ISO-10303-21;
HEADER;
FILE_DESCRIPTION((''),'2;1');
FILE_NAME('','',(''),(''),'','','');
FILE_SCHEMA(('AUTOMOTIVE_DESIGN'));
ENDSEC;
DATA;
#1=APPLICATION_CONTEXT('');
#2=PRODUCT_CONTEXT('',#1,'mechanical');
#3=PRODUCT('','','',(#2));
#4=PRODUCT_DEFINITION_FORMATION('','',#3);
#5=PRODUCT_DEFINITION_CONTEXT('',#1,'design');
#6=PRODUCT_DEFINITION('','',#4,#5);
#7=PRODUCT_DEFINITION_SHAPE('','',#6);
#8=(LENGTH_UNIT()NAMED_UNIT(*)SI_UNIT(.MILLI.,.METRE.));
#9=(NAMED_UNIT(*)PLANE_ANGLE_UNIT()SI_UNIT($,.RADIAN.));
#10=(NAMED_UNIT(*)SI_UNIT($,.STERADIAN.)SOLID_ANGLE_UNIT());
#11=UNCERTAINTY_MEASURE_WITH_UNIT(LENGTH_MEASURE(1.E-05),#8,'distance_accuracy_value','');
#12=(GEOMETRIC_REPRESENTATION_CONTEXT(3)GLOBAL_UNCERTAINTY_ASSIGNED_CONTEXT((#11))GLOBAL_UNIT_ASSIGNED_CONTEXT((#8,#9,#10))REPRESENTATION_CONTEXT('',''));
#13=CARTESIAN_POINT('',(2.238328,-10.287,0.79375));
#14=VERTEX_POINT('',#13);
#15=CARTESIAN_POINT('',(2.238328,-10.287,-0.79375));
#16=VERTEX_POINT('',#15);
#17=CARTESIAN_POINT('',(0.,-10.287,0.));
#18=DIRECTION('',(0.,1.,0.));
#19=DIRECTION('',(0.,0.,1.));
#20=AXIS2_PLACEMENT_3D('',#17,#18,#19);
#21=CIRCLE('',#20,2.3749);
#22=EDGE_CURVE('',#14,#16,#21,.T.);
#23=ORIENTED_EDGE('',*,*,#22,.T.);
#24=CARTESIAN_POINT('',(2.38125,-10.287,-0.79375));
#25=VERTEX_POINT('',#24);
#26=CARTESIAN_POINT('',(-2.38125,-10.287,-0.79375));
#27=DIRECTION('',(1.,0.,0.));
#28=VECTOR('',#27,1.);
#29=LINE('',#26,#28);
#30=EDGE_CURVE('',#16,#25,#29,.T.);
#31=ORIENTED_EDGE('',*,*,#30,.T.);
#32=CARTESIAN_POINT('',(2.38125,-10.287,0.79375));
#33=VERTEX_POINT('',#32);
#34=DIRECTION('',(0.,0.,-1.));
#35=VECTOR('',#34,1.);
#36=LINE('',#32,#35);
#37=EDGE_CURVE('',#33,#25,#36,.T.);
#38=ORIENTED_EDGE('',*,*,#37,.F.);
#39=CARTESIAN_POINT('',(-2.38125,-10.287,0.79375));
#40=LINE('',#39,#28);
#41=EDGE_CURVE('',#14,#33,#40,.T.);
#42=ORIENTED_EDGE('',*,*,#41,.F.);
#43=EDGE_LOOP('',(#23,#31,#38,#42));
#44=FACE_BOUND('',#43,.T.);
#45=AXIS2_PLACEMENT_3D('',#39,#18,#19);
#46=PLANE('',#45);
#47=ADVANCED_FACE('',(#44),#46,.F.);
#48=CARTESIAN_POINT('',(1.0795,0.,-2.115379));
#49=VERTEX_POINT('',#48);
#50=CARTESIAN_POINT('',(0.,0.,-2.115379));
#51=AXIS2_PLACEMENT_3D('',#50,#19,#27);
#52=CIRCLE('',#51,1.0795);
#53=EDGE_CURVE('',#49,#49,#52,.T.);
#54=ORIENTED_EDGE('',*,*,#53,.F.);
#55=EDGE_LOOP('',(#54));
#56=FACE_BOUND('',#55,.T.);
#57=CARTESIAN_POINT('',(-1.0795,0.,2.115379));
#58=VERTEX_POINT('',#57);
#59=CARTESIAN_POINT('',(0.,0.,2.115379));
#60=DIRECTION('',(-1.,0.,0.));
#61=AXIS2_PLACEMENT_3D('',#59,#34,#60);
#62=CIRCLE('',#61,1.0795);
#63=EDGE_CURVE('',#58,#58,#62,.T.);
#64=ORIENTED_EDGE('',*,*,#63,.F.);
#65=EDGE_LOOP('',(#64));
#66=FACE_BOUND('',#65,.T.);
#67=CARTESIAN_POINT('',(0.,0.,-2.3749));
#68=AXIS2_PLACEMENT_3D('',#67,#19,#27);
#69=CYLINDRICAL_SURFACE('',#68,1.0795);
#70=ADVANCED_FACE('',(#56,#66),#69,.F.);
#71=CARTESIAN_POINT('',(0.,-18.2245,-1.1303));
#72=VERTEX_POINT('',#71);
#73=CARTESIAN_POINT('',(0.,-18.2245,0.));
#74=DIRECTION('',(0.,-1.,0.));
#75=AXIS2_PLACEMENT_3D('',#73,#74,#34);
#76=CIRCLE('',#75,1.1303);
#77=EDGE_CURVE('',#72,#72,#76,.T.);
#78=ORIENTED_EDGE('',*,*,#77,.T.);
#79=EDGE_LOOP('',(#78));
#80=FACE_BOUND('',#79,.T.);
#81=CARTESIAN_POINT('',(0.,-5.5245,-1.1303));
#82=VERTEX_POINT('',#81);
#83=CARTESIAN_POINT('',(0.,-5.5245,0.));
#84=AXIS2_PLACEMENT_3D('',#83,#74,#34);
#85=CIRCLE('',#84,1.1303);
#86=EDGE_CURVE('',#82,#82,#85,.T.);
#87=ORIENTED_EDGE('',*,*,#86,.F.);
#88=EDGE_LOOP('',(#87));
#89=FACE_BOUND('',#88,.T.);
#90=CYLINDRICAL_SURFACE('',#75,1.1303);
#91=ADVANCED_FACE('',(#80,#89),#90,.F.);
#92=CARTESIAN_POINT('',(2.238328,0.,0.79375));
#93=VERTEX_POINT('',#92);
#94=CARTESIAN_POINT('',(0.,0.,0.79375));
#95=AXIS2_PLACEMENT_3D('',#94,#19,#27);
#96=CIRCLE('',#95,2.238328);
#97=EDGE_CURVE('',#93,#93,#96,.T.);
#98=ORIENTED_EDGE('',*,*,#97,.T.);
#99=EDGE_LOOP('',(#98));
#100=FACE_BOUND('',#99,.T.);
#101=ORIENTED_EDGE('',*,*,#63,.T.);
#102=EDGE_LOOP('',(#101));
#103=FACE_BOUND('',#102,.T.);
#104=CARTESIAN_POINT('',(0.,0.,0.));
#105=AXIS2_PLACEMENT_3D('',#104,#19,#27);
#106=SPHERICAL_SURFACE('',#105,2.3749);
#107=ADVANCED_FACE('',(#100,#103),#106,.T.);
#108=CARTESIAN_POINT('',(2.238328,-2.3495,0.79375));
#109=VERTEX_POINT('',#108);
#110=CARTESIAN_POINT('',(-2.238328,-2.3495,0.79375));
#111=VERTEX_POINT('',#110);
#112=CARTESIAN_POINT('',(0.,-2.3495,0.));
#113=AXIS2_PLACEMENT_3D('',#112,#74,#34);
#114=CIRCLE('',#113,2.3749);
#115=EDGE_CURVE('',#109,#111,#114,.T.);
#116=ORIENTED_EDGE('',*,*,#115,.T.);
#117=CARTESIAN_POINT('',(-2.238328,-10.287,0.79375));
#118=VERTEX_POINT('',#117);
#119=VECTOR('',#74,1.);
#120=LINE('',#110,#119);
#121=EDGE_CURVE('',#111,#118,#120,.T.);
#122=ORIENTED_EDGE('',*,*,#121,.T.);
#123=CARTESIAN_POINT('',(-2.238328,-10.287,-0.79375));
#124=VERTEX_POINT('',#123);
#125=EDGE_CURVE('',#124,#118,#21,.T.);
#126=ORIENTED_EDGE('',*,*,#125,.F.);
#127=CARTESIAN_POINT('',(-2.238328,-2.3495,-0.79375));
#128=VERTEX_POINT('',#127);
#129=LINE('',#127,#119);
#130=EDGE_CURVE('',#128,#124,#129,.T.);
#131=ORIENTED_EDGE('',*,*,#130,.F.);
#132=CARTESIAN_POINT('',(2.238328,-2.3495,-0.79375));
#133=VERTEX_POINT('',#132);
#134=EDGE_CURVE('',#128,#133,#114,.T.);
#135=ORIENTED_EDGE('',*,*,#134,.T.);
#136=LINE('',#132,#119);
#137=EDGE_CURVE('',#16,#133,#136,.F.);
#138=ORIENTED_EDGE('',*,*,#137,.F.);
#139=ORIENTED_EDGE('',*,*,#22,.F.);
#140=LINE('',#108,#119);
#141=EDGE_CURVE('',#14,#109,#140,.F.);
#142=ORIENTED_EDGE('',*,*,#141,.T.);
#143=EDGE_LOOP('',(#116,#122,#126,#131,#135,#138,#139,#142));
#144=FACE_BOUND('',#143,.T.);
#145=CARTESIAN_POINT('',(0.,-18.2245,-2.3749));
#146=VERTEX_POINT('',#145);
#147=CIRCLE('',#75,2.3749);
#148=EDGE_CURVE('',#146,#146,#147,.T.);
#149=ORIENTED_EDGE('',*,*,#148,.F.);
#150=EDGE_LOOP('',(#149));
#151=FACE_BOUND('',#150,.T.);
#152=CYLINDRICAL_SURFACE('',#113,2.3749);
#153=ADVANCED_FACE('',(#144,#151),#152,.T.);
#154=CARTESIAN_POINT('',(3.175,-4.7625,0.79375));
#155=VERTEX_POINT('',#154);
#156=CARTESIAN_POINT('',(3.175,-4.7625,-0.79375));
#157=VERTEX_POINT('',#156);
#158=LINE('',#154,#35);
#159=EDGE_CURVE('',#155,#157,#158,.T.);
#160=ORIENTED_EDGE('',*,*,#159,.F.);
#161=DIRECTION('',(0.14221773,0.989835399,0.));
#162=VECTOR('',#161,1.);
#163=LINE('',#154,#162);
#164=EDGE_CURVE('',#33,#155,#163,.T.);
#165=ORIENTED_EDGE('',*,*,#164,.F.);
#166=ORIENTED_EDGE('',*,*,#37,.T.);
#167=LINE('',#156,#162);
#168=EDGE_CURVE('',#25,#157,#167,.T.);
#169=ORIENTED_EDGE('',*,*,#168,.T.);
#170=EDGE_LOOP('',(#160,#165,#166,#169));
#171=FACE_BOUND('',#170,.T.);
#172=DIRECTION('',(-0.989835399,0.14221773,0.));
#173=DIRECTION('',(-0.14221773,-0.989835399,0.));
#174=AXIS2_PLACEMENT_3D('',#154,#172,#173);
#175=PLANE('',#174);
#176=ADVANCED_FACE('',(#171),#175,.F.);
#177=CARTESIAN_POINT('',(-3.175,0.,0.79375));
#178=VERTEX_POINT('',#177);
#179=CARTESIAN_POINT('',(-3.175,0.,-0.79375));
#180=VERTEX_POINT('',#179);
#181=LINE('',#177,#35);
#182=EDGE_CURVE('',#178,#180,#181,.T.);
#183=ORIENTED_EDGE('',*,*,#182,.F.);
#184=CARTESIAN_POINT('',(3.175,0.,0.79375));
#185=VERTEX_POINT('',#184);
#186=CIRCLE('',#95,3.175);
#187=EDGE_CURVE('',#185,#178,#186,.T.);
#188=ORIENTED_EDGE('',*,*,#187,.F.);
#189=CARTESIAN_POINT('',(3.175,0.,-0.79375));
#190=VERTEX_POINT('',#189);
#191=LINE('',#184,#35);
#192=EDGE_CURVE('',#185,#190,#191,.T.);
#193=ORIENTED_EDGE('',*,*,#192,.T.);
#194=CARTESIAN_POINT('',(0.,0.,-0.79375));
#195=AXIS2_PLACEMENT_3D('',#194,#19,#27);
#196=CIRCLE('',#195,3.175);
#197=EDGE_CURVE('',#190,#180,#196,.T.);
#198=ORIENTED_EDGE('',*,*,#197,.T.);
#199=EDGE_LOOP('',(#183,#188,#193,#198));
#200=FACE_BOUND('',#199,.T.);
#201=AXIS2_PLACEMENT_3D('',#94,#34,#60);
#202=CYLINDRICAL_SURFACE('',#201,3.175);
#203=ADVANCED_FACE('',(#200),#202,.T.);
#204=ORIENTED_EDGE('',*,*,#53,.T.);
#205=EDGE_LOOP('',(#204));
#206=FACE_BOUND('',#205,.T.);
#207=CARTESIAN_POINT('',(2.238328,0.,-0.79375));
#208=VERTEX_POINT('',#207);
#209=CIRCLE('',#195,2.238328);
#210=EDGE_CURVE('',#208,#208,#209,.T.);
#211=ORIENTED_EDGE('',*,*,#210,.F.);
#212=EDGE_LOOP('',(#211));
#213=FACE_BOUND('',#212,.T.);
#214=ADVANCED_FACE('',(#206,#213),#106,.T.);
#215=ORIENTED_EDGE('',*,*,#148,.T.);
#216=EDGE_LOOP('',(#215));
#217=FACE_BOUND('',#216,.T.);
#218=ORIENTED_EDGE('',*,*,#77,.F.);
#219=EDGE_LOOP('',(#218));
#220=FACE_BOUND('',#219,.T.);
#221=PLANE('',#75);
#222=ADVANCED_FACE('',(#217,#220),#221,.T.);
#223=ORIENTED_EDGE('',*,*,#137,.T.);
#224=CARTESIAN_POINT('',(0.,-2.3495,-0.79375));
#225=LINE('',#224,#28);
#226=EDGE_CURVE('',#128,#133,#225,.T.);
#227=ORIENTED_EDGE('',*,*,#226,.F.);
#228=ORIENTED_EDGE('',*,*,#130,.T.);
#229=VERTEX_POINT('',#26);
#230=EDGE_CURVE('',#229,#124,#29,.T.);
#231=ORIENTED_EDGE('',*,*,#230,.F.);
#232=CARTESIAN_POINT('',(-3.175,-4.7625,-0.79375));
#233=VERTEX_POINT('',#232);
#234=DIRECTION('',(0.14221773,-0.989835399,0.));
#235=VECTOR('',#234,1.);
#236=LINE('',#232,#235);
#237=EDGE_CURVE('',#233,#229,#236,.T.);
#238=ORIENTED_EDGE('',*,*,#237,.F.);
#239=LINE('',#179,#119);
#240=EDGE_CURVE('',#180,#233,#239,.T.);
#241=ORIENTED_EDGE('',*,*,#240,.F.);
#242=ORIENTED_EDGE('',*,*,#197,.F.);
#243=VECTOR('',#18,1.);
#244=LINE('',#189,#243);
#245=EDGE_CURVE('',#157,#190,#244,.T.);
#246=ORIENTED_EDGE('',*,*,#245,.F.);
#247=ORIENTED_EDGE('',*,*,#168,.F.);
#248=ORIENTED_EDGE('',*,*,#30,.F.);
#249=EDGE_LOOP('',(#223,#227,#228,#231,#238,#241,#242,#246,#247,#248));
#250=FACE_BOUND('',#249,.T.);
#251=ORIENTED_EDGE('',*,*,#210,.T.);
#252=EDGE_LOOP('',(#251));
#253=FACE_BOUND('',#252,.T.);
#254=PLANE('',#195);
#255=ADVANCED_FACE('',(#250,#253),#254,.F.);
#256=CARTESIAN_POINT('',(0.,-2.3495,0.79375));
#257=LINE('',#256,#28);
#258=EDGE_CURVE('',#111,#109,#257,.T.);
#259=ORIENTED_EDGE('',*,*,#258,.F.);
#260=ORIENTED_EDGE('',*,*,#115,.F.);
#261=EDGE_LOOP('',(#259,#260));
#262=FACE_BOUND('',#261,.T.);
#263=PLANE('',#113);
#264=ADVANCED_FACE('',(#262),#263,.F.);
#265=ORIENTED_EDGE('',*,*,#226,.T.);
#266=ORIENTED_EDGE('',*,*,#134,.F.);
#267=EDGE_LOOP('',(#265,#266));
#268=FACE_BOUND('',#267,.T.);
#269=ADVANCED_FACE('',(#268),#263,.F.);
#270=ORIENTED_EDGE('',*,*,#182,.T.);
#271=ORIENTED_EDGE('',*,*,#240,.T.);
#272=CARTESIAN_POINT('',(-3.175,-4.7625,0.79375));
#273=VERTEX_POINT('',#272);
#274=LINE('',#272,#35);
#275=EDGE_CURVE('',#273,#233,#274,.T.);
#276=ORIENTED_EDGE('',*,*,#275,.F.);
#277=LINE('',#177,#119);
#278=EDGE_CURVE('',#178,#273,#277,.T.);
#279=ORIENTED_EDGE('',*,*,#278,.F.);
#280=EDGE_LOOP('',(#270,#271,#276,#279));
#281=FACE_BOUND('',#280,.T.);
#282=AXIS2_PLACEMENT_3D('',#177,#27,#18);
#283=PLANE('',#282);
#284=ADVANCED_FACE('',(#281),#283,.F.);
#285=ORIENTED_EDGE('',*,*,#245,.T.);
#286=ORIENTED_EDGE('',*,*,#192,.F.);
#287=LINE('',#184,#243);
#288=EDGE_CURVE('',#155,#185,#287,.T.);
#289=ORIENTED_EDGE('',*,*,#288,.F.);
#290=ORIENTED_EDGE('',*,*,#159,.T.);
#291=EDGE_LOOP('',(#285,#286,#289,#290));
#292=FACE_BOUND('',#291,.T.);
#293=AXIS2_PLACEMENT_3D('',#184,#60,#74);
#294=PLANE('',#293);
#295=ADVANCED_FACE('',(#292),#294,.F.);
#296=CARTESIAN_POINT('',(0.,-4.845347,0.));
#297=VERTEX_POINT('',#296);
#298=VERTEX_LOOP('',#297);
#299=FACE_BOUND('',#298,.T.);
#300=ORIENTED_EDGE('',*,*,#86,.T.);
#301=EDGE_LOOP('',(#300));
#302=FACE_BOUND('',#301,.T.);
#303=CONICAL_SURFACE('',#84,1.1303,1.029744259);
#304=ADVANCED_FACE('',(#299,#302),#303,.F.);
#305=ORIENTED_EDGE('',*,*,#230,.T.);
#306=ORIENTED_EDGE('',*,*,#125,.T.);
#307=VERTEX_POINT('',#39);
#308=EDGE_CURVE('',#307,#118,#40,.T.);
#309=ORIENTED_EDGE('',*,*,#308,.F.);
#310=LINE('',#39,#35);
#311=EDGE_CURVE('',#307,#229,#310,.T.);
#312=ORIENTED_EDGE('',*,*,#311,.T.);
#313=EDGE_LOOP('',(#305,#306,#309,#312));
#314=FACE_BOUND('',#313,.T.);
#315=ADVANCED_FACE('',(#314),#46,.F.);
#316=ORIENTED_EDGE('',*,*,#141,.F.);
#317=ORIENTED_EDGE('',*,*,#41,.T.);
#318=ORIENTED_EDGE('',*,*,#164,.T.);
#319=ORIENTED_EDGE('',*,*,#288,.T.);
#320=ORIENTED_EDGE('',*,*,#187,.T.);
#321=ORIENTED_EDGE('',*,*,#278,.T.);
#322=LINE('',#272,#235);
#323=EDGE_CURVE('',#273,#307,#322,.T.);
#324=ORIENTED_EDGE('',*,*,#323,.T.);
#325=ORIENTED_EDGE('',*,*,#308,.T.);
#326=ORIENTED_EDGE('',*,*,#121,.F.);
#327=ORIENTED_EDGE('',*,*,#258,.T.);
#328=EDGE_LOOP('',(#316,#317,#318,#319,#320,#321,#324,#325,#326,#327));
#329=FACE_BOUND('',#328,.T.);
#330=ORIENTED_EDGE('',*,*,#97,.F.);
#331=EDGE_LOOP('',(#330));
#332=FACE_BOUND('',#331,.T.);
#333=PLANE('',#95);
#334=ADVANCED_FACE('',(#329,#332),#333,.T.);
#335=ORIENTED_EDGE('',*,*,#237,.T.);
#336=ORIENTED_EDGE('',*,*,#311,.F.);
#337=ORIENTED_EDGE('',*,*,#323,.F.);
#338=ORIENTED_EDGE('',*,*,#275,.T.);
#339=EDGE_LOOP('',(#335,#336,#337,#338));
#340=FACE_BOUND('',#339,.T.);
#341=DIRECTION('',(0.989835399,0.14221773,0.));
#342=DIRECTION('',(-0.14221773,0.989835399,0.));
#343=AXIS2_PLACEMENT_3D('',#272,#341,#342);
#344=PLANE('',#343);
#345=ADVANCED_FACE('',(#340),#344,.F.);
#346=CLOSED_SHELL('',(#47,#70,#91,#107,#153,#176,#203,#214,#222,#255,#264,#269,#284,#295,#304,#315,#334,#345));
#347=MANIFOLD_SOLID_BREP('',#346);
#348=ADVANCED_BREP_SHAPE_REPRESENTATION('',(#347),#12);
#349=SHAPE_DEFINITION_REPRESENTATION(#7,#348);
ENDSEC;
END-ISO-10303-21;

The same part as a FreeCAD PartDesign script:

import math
import FreeCAD as App
import Part
import Sketcher

V = App.Vector
Q = App.Units.Quantity

doc = App.newDocument("Part")
body = doc.addObject("PartDesign::Body", "Body")

sketch1 = doc.addObject("Sketcher::SketchObject", "Sketch")
body.addObject(sketch1)
sketch1.AttachmentSupport = (doc.XY_Plane, [""])
sketch1.MapMode = "FlatFace"
sketch1.addGeometry([
    Part.LineSegment(V(0, 2.3749, 0), V(0, -2.3749, 0)),
    Part.ArcOfCircle(Part.Circle(V(0, 0, 0), V(0, 0, 1), 2.3749), math.radians(-90), math.radians(90)),
], False)
sketch1.addConstraint([
    Sketcher.Constraint("Coincident", 0, 1, 1, 2),
    Sketcher.Constraint("Coincident", 1, 1, 0, 2),
    Sketcher.Constraint("Vertical", 0),
    Sketcher.Constraint("Coincident", 1, 3, -1, 1),
    Sketcher.Constraint("PointOnObject", 0, 1, -2),
    Sketcher.Constraint("Radius", 1, Q("0.0935 in")),
])
revolution = doc.addObject("PartDesign::Revolution", "Revolution")
body.addObject(revolution)
revolution.Profile = sketch1
revolution.ReferenceAxis = (sketch1, ["V_Axis"])
revolution.Angle = 360

sketch2 = doc.addObject("Sketcher::SketchObject", "Sketch001")
body.addObject(sketch2)
sketch2.AttachmentSupport = (doc.XY_Plane, [""])
sketch2.MapMode = "FlatFace"
sketch2.addGeometry(Part.Circle(V(0, 0, 0), V(0, 0, 1), 1.0795), False)
sketch2.addConstraint([
    Sketcher.Constraint("Coincident", 0, 3, -1, 1),
    Sketcher.Constraint("Diameter", 0, Q("0.085 in")),
])
pocket1 = doc.addObject("PartDesign::Pocket", "Pocket")
body.addObject(pocket1)
pocket1.Profile = sketch2
pocket1.Type = "ThroughAll"
pocket1.Midplane = True

sketch3 = doc.addObject("Sketcher::SketchObject", "Sketch002")
body.addObject(sketch3)
sketch3.AttachmentSupport = (doc.XY_Plane, [""])
sketch3.MapMode = "FlatFace"
sketch3.addGeometry([
    Part.LineSegment(V(-3.175, 0, 0), V(-3.175, -4.7625, 0)),
    Part.LineSegment(V(-3.175, -4.7625, 0), V(-2.38125, -10.287, 0)),
    Part.LineSegment(V(-2.38125, -10.287, 0), V(2.38125, -10.287, 0)),
    Part.LineSegment(V(2.38125, -10.287, 0), V(3.175, -4.7625, 0)),
    Part.LineSegment(V(3.175, -4.7625, 0), V(3.175, 0, 0)),
    Part.ArcOfCircle(Part.Circle(V(0, 0, 0), V(0, 0, 1), 3.175), math.radians(0), math.radians(180)),
    Part.Circle(V(0, 0, 0), V(0, 0, 1), 1.0795),
], False)
sketch3.addConstraint([
    Sketcher.Constraint("Coincident", 0, 2, 1, 1),
    Sketcher.Constraint("Coincident", 1, 2, 2, 1),
    Sketcher.Constraint("Coincident", 2, 2, 3, 1),
    Sketcher.Constraint("Coincident", 3, 2, 4, 1),
    Sketcher.Constraint("Tangent", 4, 2, 5, 1),
    Sketcher.Constraint("Tangent", 5, 2, 0, 1),
    Sketcher.Constraint("Vertical", 0),
    Sketcher.Constraint("Horizontal", 2),
    Sketcher.Constraint("Vertical", 4),
    Sketcher.Constraint("Coincident", 5, 3, -1, 1),
    Sketcher.Constraint("Coincident", 6, 3, -1, 1),
    Sketcher.Constraint("Horizontal", 0, 2, 3, 2),
    Sketcher.Constraint("Equal", 2, 0),
    Sketcher.Constraint("Equal", 1, 3),
    Sketcher.Constraint("Diameter", 6, Q("0.085 in")),
    Sketcher.Constraint("Radius", 5, Q("0.125 in")),
    Sketcher.Constraint("DistanceX", 2, 1, 2, 2, Q("0.1875 in")),
    Sketcher.Constraint("DistanceY", 1, 2, -1, 1, Q("0.405 in")),
])
pad1 = doc.addObject("PartDesign::Pad", "Pad")
body.addObject(pad1)
pad1.Profile = sketch3
pad1.Length = Q("0.0625 in")
pad1.Midplane = True

sketch4 = doc.addObject("Sketcher::SketchObject", "Sketch003")
body.addObject(sketch4)
sketch4.AttachmentSupport = (doc.XZ_Plane, [""])
sketch4.MapMode = "FlatFace"
sketch4.AttachmentOffset = App.Placement(V(0, 0, 0.405 * 25.4), App.Rotation())
sketch4.addGeometry(Part.Circle(V(0, 0, 0), V(0, 0, 1), 2.3749), False)
sketch4.addConstraint([
    Sketcher.Constraint("Coincident", 0, 3, -1, 1),
    Sketcher.Constraint("Diameter", 0, Q("0.187 in")),
])
pad2 = doc.addObject("PartDesign::Pad", "Pad001")
body.addObject(pad2)
pad2.Profile = sketch4
pad2.Length = Q("0.625 in")
pad2.Midplane = True

sketch5 = doc.addObject("Sketcher::SketchObject", "Sketch004")
body.addObject(sketch5)
sketch5.AttachmentSupport = (doc.XZ_Plane, [""])
sketch5.MapMode = "FlatFace"
sketch5.AttachmentOffset = App.Placement(V(0, 0, 0.7175 * 25.4), App.Rotation())
sketch5.addGeometry(Part.Circle(V(0, 0, 0), V(0, 0, 1), 1.1303), False)
sketch5.addConstraint([
    Sketcher.Constraint("Coincident", 0, 3, -1, 1),
    Sketcher.Constraint("Diameter", 0, Q("0.089 in")),
])
doc.recompute()
hole = doc.addObject("PartDesign::Hole", "Hole")
body.addObject(hole)
hole.Profile = sketch5
hole.ThreadType = "None"
hole.Diameter = Q("0.089 in")
hole.DepthType = "Dimension"
hole.Depth = Q("0.5 in")
hole.DrillPoint = "Angled"
hole.DrillPointAngle = 118

doc.recompute()
